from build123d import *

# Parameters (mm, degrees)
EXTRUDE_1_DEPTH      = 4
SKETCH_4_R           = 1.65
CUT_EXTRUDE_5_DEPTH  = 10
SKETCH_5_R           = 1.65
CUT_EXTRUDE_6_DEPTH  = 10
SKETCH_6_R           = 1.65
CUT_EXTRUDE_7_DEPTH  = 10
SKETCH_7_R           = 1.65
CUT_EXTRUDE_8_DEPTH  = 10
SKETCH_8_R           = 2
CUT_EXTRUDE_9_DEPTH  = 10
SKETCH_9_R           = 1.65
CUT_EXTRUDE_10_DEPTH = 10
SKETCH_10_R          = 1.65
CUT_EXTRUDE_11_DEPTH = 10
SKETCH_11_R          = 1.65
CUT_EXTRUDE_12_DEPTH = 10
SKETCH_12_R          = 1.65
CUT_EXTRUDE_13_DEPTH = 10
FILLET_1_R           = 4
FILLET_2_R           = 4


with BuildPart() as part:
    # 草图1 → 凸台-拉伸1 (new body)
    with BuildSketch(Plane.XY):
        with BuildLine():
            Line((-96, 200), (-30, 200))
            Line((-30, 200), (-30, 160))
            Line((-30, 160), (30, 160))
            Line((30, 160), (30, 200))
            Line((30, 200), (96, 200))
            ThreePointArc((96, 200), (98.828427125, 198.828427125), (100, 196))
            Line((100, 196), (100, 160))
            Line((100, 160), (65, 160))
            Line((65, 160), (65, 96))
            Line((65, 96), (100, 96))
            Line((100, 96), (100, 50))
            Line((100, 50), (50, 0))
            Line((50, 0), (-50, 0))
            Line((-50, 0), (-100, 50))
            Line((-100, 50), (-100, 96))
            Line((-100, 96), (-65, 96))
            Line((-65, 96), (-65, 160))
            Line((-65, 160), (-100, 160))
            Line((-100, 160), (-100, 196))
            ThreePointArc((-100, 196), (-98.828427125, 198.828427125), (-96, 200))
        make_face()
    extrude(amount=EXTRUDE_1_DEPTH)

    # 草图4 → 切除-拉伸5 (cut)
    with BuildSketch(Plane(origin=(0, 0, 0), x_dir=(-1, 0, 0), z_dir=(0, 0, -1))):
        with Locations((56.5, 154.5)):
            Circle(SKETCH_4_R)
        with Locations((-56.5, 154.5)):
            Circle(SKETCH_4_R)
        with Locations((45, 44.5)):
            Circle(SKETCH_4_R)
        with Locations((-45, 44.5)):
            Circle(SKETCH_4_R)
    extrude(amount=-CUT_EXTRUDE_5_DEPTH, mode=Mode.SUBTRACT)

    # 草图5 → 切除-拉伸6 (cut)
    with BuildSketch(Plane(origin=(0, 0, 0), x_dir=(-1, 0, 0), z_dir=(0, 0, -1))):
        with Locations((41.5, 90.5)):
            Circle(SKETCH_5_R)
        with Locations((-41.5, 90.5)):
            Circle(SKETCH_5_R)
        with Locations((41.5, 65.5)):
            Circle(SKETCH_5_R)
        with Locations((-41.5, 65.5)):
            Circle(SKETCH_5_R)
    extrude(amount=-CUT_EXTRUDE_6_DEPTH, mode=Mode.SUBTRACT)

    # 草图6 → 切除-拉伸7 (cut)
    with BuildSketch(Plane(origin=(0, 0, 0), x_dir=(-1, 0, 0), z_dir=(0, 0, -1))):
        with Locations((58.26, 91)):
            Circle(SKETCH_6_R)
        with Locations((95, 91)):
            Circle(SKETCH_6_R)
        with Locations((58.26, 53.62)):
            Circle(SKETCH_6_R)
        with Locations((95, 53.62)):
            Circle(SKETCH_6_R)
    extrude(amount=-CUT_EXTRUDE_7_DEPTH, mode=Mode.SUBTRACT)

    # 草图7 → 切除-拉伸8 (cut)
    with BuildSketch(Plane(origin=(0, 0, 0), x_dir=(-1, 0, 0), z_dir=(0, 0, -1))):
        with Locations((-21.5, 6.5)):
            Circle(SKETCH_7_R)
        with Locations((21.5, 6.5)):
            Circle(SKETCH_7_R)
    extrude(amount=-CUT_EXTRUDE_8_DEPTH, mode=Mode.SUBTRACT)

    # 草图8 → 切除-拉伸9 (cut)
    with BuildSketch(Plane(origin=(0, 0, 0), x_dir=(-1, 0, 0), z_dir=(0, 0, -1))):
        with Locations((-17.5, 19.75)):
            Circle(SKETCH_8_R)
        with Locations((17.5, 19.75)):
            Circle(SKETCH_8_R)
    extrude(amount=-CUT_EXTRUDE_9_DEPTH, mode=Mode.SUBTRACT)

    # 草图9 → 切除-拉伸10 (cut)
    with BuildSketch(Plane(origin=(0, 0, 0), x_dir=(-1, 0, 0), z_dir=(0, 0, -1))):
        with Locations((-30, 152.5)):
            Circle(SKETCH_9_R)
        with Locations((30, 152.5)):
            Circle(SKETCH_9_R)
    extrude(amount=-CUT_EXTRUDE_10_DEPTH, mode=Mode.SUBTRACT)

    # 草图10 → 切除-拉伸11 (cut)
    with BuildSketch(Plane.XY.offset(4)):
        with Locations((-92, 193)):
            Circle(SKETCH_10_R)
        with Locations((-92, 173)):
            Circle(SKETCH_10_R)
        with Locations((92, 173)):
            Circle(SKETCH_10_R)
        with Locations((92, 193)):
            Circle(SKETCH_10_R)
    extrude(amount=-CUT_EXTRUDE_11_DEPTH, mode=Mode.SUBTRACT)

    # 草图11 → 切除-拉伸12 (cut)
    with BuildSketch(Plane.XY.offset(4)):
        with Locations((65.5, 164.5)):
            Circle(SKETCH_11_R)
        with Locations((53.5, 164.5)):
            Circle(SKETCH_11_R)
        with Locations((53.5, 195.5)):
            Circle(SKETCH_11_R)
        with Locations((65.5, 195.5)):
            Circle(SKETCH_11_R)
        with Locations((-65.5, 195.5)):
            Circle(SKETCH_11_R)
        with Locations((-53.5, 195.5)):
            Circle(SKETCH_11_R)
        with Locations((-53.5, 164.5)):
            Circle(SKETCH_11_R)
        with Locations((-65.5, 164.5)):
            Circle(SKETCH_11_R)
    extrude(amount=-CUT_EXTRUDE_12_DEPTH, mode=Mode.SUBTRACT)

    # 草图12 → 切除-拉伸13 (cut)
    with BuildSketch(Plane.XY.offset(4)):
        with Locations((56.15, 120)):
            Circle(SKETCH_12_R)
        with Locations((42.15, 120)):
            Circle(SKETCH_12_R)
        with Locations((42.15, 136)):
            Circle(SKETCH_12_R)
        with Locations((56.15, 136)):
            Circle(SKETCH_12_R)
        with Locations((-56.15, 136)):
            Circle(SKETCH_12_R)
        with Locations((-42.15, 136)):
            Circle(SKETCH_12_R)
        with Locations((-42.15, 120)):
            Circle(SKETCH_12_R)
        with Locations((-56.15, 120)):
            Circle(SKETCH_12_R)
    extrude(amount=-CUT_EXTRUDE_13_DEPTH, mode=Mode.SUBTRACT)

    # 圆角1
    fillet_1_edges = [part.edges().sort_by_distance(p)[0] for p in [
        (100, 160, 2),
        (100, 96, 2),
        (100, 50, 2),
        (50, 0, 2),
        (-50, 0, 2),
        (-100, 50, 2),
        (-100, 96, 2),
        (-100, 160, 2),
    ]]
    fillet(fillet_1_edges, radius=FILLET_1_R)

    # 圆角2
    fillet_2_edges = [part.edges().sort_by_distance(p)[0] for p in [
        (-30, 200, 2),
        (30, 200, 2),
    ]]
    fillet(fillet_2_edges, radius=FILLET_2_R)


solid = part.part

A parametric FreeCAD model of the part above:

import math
import FreeCAD as App
import Part
import Sketcher

V = App.Vector
Q = App.Units.Quantity


def edges_at(feature, points):
    """Names of the edges that pass closest to the given points."""
    edges = feature.Shape.Edges
    near = lambda p: min(range(len(edges)), key=lambda i: edges[i].distToShape(Part.Vertex(*p))[0])
    return sorted({f"Edge{near(p) + 1}" for p in points})

doc = App.newDocument("Part")
body = doc.addObject("PartDesign::Body", "Body")

sketch1 = doc.addObject("Sketcher::SketchObject", "Sketch")
body.addObject(sketch1)
sketch1.AttachmentSupport = (doc.XY_Plane, [""])
sketch1.MapMode = "FlatFace"
sketch1.addGeometry(Part.LineSegment(V(-30, 200, 0), V(-96, 200, 0)), False)
sketch1.addGeometry(Part.ArcOfCircle(Part.Circle(V(-96, 196, 0), V(0, 0, 1), 4), math.radians(90), math.radians(180)), False)
sketch1.addGeometry(Part.LineSegment(V(-100, 196, 0), V(-100, 160, 0)), False)
sketch1.addGeometry(Part.LineSegment(V(-100, 160, 0), V(-65, 160, 0)), False)
sketch1.addGeometry(Part.LineSegment(V(-65, 160, 0), V(-65, 96, 0)), False)
sketch1.addGeometry(Part.LineSegment(V(-65, 96, 0), V(-100, 96, 0)), False)
sketch1.addGeometry(Part.LineSegment(V(-100, 96, 0), V(-100, 50, 0)), False)
sketch1.addGeometry(Part.LineSegment(V(-100, 50, 0), V(-50, 0, 0)), False)
sketch1.addGeometry(Part.LineSegment(V(-50, 0, 0), V(50, 0, 0)), False)
sketch1.addGeometry(Part.LineSegment(V(50, 0, 0), V(100, 50, 0)), False)
sketch1.addGeometry(Part.LineSegment(V(100, 50, 0), V(100, 96, 0)), False)
sketch1.addGeometry(Part.LineSegment(V(100, 96, 0), V(65, 96, 0)), False)
sketch1.addGeometry(Part.LineSegment(V(65, 96, 0), V(65, 160, 0)), False)
sketch1.addGeometry(Part.LineSegment(V(65, 160, 0), V(100, 160, 0)), False)
sketch1.addGeometry(Part.LineSegment(V(100, 160, 0), V(100, 196, 0)), False)
sketch1.addGeometry(Part.ArcOfCircle(Part.Circle(V(96, 196, 0), V(0, 0, 1), 4), math.radians(0), math.radians(90)), False)
sketch1.addGeometry(Part.LineSegment(V(96, 200, 0), V(30, 200, 0)), False)
sketch1.addGeometry(Part.LineSegment(V(30, 200, 0), V(30, 160, 0)), False)
sketch1.addGeometry(Part.LineSegment(V(30, 160, 0), V(-30, 160, 0)), False)
sketch1.addGeometry(Part.LineSegment(V(-30, 160, 0), V(-30, 200, 0)), False)
sketch1.addConstraint(Sketcher.Constraint("Tangent", 0, 2, 1, 1))
sketch1.addConstraint(Sketcher.Constraint("Tangent", 1, 2, 2, 1))
sketch1.addConstraint(Sketcher.Constraint("Coincident", 2, 2, 3, 1))
sketch1.addConstraint(Sketcher.Constraint("Coincident", 3, 2, 4, 1))
sketch1.addConstraint(Sketcher.Constraint("Coincident", 4, 2, 5, 1))
sketch1.addConstraint(Sketcher.Constraint("Coincident", 5, 2, 6, 1))
sketch1.addConstraint(Sketcher.Constraint("Coincident", 6, 2, 7, 1))
sketch1.addConstraint(Sketcher.Constraint("Coincident", 7, 2, 8, 1))
sketch1.addConstraint(Sketcher.Constraint("Coincident", 8, 2, 9, 1))
sketch1.addConstraint(Sketcher.Constraint("Coincident", 9, 2, 10, 1))
sketch1.addConstraint(Sketcher.Constraint("Coincident", 10, 2, 11, 1))
sketch1.addConstraint(Sketcher.Constraint("Coincident", 11, 2, 12, 1))
sketch1.addConstraint(Sketcher.Constraint("Coincident", 12, 2, 13, 1))
sketch1.addConstraint(Sketcher.Constraint("Coincident", 13, 2, 14, 1))
sketch1.addConstraint(Sketcher.Constraint("Tangent", 14, 2, 15, 1))
sketch1.addConstraint(Sketcher.Constraint("Tangent", 15, 2, 16, 1))
sketch1.addConstraint(Sketcher.Constraint("Coincident", 16, 2, 17, 1))
sketch1.addConstraint(Sketcher.Constraint("Coincident", 17, 2, 18, 1))
sketch1.addConstraint(Sketcher.Constraint("Coincident", 18, 2, 19, 1))
sketch1.addConstraint(Sketcher.Constraint("Coincident", 19, 2, 0, 1))
sketch1.addConstraint(Sketcher.Constraint("Horizontal", 0))
sketch1.addConstraint(Sketcher.Constraint("Vertical", 2))
sketch1.addConstraint(Sketcher.Constraint("Horizontal", 3))
sketch1.addConstraint(Sketcher.Constraint("Vertical", 4))
sketch1.addConstraint(Sketcher.Constraint("Horizontal", 5))
sketch1.addConstraint(Sketcher.Constraint("Vertical", 6))
sketch1.addConstraint(Sketcher.Constraint("Horizontal", 8))
sketch1.addConstraint(Sketcher.Constraint("Vertical", 10))
sketch1.addConstraint(Sketcher.Constraint("Horizontal", 11))
sketch1.addConstraint(Sketcher.Constraint("Vertical", 12))
sketch1.addConstraint(Sketcher.Constraint("Horizontal", 13))
sketch1.addConstraint(Sketcher.Constraint("Vertical", 14))
sketch1.addConstraint(Sketcher.Constraint("Horizontal", 16))
sketch1.addConstraint(Sketcher.Constraint("Vertical", 17))
sketch1.addConstraint(Sketcher.Constraint("Horizontal", 18))
sketch1.addConstraint(Sketcher.Constraint("Vertical", 19))
sketch1.addConstraint(Sketcher.Constraint("Equal", 1, 15))
sketch1.addConstraint(Sketcher.Constraint("Symmetric", 7, 2, 8, 2, -1, 1))
sketch1.addConstraint(Sketcher.Constraint("Symmetric", 1, 3, 15, 3, -2))
sketch1.addConstraint(Sketcher.Constraint("Symmetric", 6, 2, 9, 2, -2))
sketch1.addConstraint(Sketcher.Constraint("Symmetric", 4, 2, 11, 2, -2))
sketch1.addConstraint(Sketcher.Constraint("Perpendicular", 7, 9))
sketch1.addConstraint(Sketcher.Constraint("Horizontal", 3, 2, 12, 2))
sketch1.addConstraint(Sketcher.Constraint("Horizontal", 13, 2, 17, 2))
sketch1.addConstraint(Sketcher.Constraint("Vertical", 2, 2, 5, 2))
sketch1.addConstraint(Sketcher.Constraint("Equal", 0, 16))
sketch1.addConstraint(Sketcher.Constraint("Radius", 1, Q("4 mm")))
sketch1.addConstraint(Sketcher.Constraint("DistanceX", 0, 2, 0, 1, Q("66 mm")))
sketch1.addConstraint(Sketcher.Constraint("DistanceX", 3, 1, 3, 2, Q("35 mm")))
sketch1.addConstraint(Sketcher.Constraint("DistanceX", 8, 1, 8, 2, Q("100 mm")))
sketch1.addConstraint(Sketcher.Constraint("DistanceX", 18, 2, 18, 1, Q("60 mm")))
sketch1.addConstraint(Sketcher.Constraint("DistanceY", 2, 2, 2, 1, Q("36 mm")))
sketch1.addConstraint(Sketcher.Constraint("DistanceY", 4, 2, 4, 1, Q("64 mm")))
sketch1.addConstraint(Sketcher.Constraint("DistanceY", 6, 2, 6, 1, Q("46 mm")))
pad1 = doc.addObject("PartDesign::Pad", "Pad")
body.addObject(pad1)
pad1.Profile = sketch1
pad1.Length = 4

sketch2 = doc.addObject("Sketcher::SketchObject", "Sketch001")
body.addObject(sketch2)
sketch2.AttachmentSupport = (doc.XY_Plane, [""])
sketch2.MapMode = "FlatFace"
sketch2.addGeometry(Part.Circle(V(-56.5, 154.5, 0), V(0, 0, 1), 1.6), False)
sketch2.addGeometry(Part.Circle(V(56.5, 154.5, 0), V(0, 0, 1), 1.6), False)
sketch2.addGeometry(Part.Circle(V(-45, 44.5, 0), V(0, 0, 1), 1.6), False)
sketch2.addGeometry(Part.Circle(V(45, 44.5, 0), V(0, 0, 1), 1.6), False)
sketch2.addConstraint(Sketcher.Constraint("Equal", 0, 1))
sketch2.addConstraint(Sketcher.Constraint("Equal", 1, 2))
sketch2.addConstraint(Sketcher.Constraint("Equal", 2, 3))
sketch2.addConstraint(Sketcher.Constraint("Symmetric", 0, 3, 1, 3, -2))
sketch2.addConstraint(Sketcher.Constraint("Symmetric", 2, 3, 3, 3, -2))
sketch2.addConstraint(Sketcher.Constraint("Diameter", 0, Q("3.3 mm")))
sketch2.addConstraint(Sketcher.Constraint("DistanceX", 2, 3, -1, 1, Q("45 mm")))
sketch2.addConstraint(Sketcher.Constraint("DistanceX", 0, 3, 1, 3, Q("113 mm")))
sketch2.addConstraint(Sketcher.Constraint("DistanceY", 2, 3, 0, 3, Q("110 mm")))
sketch2.addConstraint(Sketcher.Constraint("DistanceY", -1, 1, 0, 3, Q("154.5 mm")))
pocket1 = doc.addObject("PartDesign::Pocket", "Pocket")
body.addObject(pocket1)
pocket1.Profile = sketch2
pocket1.Length = 10
pocket1.Reversed = True

sketch3 = doc.addObject("Sketcher::SketchObject", "Sketch002")
body.addObject(sketch3)
sketch3.AttachmentSupport = (doc.XY_Plane, [""])
sketch3.MapMode = "FlatFace"
sketch3.addGeometry(Part.Circle(V(-41.5, 90.5, 0), V(0, 0, 1), 1.6), False)
sketch3.addGeometry(Part.Circle(V(41.5, 90.5, 0), V(0, 0, 1), 1.6), False)
sketch3.addGeometry(Part.Circle(V(-41.5, 65.5, 0), V(0, 0, 1), 1.6), False)
sketch3.addGeometry(Part.Circle(V(41.5, 65.5, 0), V(0, 0, 1), 1.6), False)
sketch3.addConstraint(Sketcher.Constraint("Equal", 0, 1))
sketch3.addConstraint(Sketcher.Constraint("Equal", 1, 2))
sketch3.addConstraint(Sketcher.Constraint("Equal", 2, 3))
sketch3.addConstraint(Sketcher.Constraint("Symmetric", 0, 3, 1, 3, -2))
sketch3.addConstraint(Sketcher.Constraint("Symmetric", 2, 3, 3, 3, -2))
sketch3.addConstraint(Sketcher.Constraint("Vertical", 0, 3, 2, 3))
sketch3.addConstraint(Sketcher.Constraint("Diameter", 0, Q("3.3 mm")))
sketch3.addConstraint(Sketcher.Constraint("DistanceX", 0, 3, 1, 3, Q("83 mm")))
sketch3.addConstraint(Sketcher.Constraint("DistanceY", 2, 3, 0, 3, Q("25 mm")))
sketch3.addConstraint(Sketcher.Constraint("DistanceY", -1, 1, 0, 3, Q("90.5 mm")))
pocket2 = doc.addObject("PartDesign::Pocket", "Pocket001")
body.addObject(pocket2)
pocket2.Profile = sketch3
pocket2.Length = 10
pocket2.Reversed = True

sketch4 = doc.addObject("Sketcher::SketchObject", "Sketch003")
body.addObject(sketch4)
sketch4.AttachmentSupport = (doc.XY_Plane, [""])
sketch4.MapMode = "FlatFace"
sketch4.addGeometry(Part.Circle(V(-58.3, 91, 0), V(0, 0, 1), 1.6), False)
sketch4.addGeometry(Part.Circle(V(-95, 91, 0), V(0, 0, 1), 1.6), False)
sketch4.addGeometry(Part.Circle(V(-58.3, 53.6, 0), V(0, 0, 1), 1.6), False)
sketch4.addGeometry(Part.Circle(V(-95, 53.6, 0), V(0, 0, 1), 1.6), False)
sketch4.addConstraint(Sketcher.Constraint("Equal", 0, 1))
sketch4.addConstraint(Sketcher.Constraint("Equal", 1, 2))
sketch4.addConstraint(Sketcher.Constraint("Equal", 2, 3))
sketch4.addConstraint(Sketcher.Constraint("Horizontal", 0, 3, 1, 3))
sketch4.addConstraint(Sketcher.Constraint("Horizontal", 2, 3, 3, 3))
sketch4.addConstraint(Sketcher.Constraint("Vertical", 0, 3, 2, 3))
sketch4.addConstraint(Sketcher.Constraint("Vertical", 1, 3, 3, 3))
sketch4.addConstraint(Sketcher.Constraint("Diameter", 0, Q("3.3 mm")))
sketch4.addConstraint(Sketcher.Constraint("DistanceY", -1, 1, 0, 3, Q("91 mm")))
sketch4.addConstraint(Sketcher.Constraint("DistanceX", 1, 3, -1, 1, Q("95 mm")))
sketch4.addConstraint(Sketcher.Constraint("DistanceX", 0, 3, -1, 1, Q("58.26 mm")))
sketch4.addConstraint(Sketcher.Constraint("DistanceY", -1, 1, 2, 3, Q("53.62 mm")))
pocket3 = doc.addObject("PartDesign::Pocket", "Pocket002")
body.addObject(pocket3)
pocket3.Profile = sketch4
pocket3.Length = 10
pocket3.Reversed = True

sketch5 = doc.addObject("Sketcher::SketchObject", "Sketch004")
body.addObject(sketch5)
sketch5.AttachmentSupport = (doc.XY_Plane, [""])
sketch5.MapMode = "FlatFace"
sketch5.addGeometry(Part.Circle(V(21.5, 6.5, 0), V(0, 0, 1), 1.6), False)
sketch5.addGeometry(Part.Circle(V(-21.5, 6.5, 0), V(0, 0, 1), 1.6), False)
sketch5.addConstraint(Sketcher.Constraint("Equal", 0, 1))
sketch5.addConstraint(Sketcher.Constraint("Symmetric", 0, 3, 1, 3, -2))
sketch5.addConstraint(Sketcher.Constraint("Diameter", 0, Q("3.3 mm")))
sketch5.addConstraint(Sketcher.Constraint("DistanceX", 1, 3, 0, 3, Q("43 mm")))
sketch5.addConstraint(Sketcher.Constraint("DistanceY", -1, 1, 0, 3, Q("6.5 mm")))
pocket4 = doc.addObject("PartDesign::Pocket", "Pocket003")
body.addObject(pocket4)
pocket4.Profile = sketch5
pocket4.Length = 10
pocket4.Reversed = True

sketch6 = doc.addObject("Sketcher::SketchObject", "Sketch005")
body.addObject(sketch6)
sketch6.AttachmentSupport = (doc.XY_Plane, [""])
sketch6.MapMode = "FlatFace"
sketch6.addGeometry(Part.Circle(V(17.5, 19.8, 0), V(0, 0, 1), 2), False)
sketch6.addGeometry(Part.Circle(V(-17.5, 19.8, 0), V(0, 0, 1), 2), False)
sketch6.addConstraint(Sketcher.Constraint("Equal", 0, 1))
sketch6.addConstraint(Sketcher.Constraint("Symmetric", 0, 3, 1, 3, -2))
sketch6.addConstraint(Sketcher.Constraint("Diameter", 0, Q("4 mm")))
sketch6.addConstraint(Sketcher.Constraint("DistanceX", 1, 3, 0, 3, Q("35 mm")))
sketch6.addConstraint(Sketcher.Constraint("DistanceY", -1, 1, 0, 3, Q("19.75 mm")))
pocket5 = doc.addObject("PartDesign::Pocket", "Pocket004")
body.addObject(pocket5)
pocket5.Profile = sketch6
pocket5.Length = 10
pocket5.Reversed = True

sketch7 = doc.addObject("Sketcher::SketchObject", "Sketch006")
body.addObject(sketch7)
sketch7.AttachmentSupport = (doc.XY_Plane, [""])
sketch7.MapMode = "FlatFace"
sketch7.addGeometry(Part.Circle(V(30, 152.5, 0), V(0, 0, 1), 1.6), False)
sketch7.addGeometry(Part.Circle(V(-30, 152.5, 0), V(0, 0, 1), 1.6), False)
sketch7.addConstraint(Sketcher.Constraint("Equal", 0, 1))
sketch7.addConstraint(Sketcher.Constraint("Symmetric", 0, 3, 1, 3, -2))
sketch7.addConstraint(Sketcher.Constraint("Diameter", 0, Q("3.3 mm")))
sketch7.addConstraint(Sketcher.Constraint("DistanceX", -1, 1, 0, 3, Q("30 mm")))
sketch7.addConstraint(Sketcher.Constraint("DistanceY", -1, 1, 0, 3, Q("152.5 mm")))
pocket6 = doc.addObject("PartDesign::Pocket", "Pocket005")
body.addObject(pocket6)
pocket6.Profile = sketch7
pocket6.Length = 10
pocket6.Reversed = True

sketch8 = doc.addObject("Sketcher::SketchObject", "Sketch007")
body.addObject(sketch8)
sketch8.AttachmentSupport = (doc.XY_Plane, [""])
sketch8.MapMode = "FlatFace"
sketch8.AttachmentOffset = App.Placement(V(0, 0, 4), App.Rotation())
sketch8.addGeometry(Part.Circle(V(-92, 193, 0), V(0, 0, 1), 1.6), False)
sketch8.addGeometry(Part.Circle(V(-92, 173, 0), V(0, 0, 1), 1.6), False)
sketch8.addGeometry(Part.Circle(V(92, 173, 0), V(0, 0, 1), 1.6), False)
sketch8.addGeometry(Part.Circle(V(92, 193, 0), V(0, 0, 1), 1.6), False)
sketch8.addConstraint(Sketcher.Constraint("Equal", 0, 1))
sketch8.addConstraint(Sketcher.Constraint("Equal", 1, 2))
sketch8.addConstraint(Sketcher.Constraint("Equal", 2, 3))
sketch8.addConstraint(Sketcher.Constraint("Symmetric", 1, 3, 2, 3, -2))
sketch8.addConstraint(Sketcher.Constraint("Symmetric", 0, 3, 3, 3, -2))
sketch8.addConstraint(Sketcher.Constraint("Vertical", 0, 3, 1, 3))
sketch8.addConstraint(Sketcher.Constraint("Diameter", 0, Q("3.3 mm")))
sketch8.addConstraint(Sketcher.Constraint("DistanceX", 0, 3, -1, 1, Q("92 mm")))
sketch8.addConstraint(Sketcher.Constraint("DistanceY", -1, 1, 0, 3, Q("193 mm")))
sketch8.addConstraint(Sketcher.Constraint("DistanceY", -1, 1, 1, 3, Q("173 mm")))
pocket7 = doc.addObject("PartDesign::Pocket", "Pocket006")
body.addObject(pocket7)
pocket7.Profile = sketch8
pocket7.Length = 10

sketch9 = doc.addObject("Sketcher::SketchObject", "Sketch008")
body.addObject(sketch9)
sketch9.AttachmentSupport = (doc.XY_Plane, [""])
sketch9.MapMode = "FlatFace"
sketch9.AttachmentOffset = App.Placement(V(0, 0, 4), App.Rotation())
sketch9.addGeometry(Part.Circle(V(65.5, 164.5, 0), V(0, 0, 1), 1.6), False)
sketch9.addGeometry(Part.Circle(V(53.5, 164.5, 0), V(0, 0, 1), 1.6), False)
sketch9.addGeometry(Part.Circle(V(53.5, 195.5, 0), V(0, 0, 1), 1.6), False)
sketch9.addGeometry(Part.Circle(V(65.5, 195.5, 0), V(0, 0, 1), 1.6), False)
sketch9.addGeometry(Part.Circle(V(-65.5, 195.5, 0), V(0, 0, 1), 1.6), False)
sketch9.addGeometry(Part.Circle(V(-53.5, 195.5, 0), V(0, 0, 1), 1.6), False)
sketch9.addGeometry(Part.Circle(V(-53.5, 164.5, 0), V(0, 0, 1), 1.6), False)
sketch9.addGeometry(Part.Circle(V(-65.5, 164.5, 0), V(0, 0, 1), 1.6), False)
sketch9.addConstraint(Sketcher.Constraint("Equal", 0, 1))
sketch9.addConstraint(Sketcher.Constraint("Equal", 1, 2))
sketch9.addConstraint(Sketcher.Constraint("Equal", 2, 3))
sketch9.addConstraint(Sketcher.Constraint("Equal", 3, 4))
sketch9.addConstraint(Sketcher.Constraint("Equal", 4, 5))
sketch9.addConstraint(Sketcher.Constraint("Equal", 5, 6))
sketch9.addConstraint(Sketcher.Constraint("Equal", 6, 7))
sketch9.addConstraint(Sketcher.Constraint("Symmetric", 3, 3, 4, 3, -2))
sketch9.addConstraint(Sketcher.Constraint("Symmetric", 2, 3, 5, 3, -2))
sketch9.addConstraint(Sketcher.Constraint("Symmetric", 1, 3, 6, 3, -2))
sketch9.addConstraint(Sketcher.Constraint("Symmetric", 0, 3, 7, 3, -2))
sketch9.addConstraint(Sketcher.Constraint("Horizontal", 0, 3, 1, 3))
sketch9.addConstraint(Sketcher.Constraint("Horizontal", 2, 3, 3, 3))
sketch9.addConstraint(Sketcher.Constraint("Vertical", 1, 3, 2, 3))
sketch9.addConstraint(Sketcher.Constraint("Vertical", 0, 3, 3, 3))
sketch9.addConstraint(Sketcher.Constraint("Diameter", 0, Q("3.3 mm")))
sketch9.addConstraint(Sketcher.Constraint("DistanceX", 1, 3, 0, 3, Q("12 mm")))
sketch9.addConstraint(Sketcher.Constraint("DistanceY", 1, 3, 2, 3, Q("31 mm")))
sketch9.addConstraint(Sketcher.Constraint("DistanceX", 4, 3, 2, 3, Q("119 mm")))
sketch9.addConstraint(Sketcher.Constraint("DistanceY", -1, 1, 0, 3, Q("164.5 mm")))
pocket8 = doc.addObject("PartDesign::Pocket", "Pocket007")
body.addObject(pocket8)
pocket8.Profile = sketch9
pocket8.Length = 10

sketch10 = doc.addObject("Sketcher::SketchObject", "Sketch009")
body.addObject(sketch10)
sketch10.AttachmentSupport = (doc.XY_Plane, [""])
sketch10.MapMode = "FlatFace"
sketch10.AttachmentOffset = App.Placement(V(0, 0, 4), App.Rotation())
sketch10.addGeometry(Part.Circle(V(56.1, 120, 0), V(0, 0, 1), 1.6), False)
sketch10.addGeometry(Part.Circle(V(42.1, 120, 0), V(0, 0, 1), 1.6), False)
sketch10.addGeometry(Part.Circle(V(42.1, 136, 0), V(0, 0, 1), 1.6), False)
sketch10.addGeometry(Part.Circle(V(56.1, 136, 0), V(0, 0, 1), 1.6), False)
sketch10.addGeometry(Part.Circle(V(-56.1, 136, 0), V(0, 0, 1), 1.6), False)
sketch10.addGeometry(Part.Circle(V(-42.1, 136, 0), V(0, 0, 1), 1.6), False)
sketch10.addGeometry(Part.Circle(V(-42.1, 120, 0), V(0, 0, 1), 1.6), False)
sketch10.addGeometry(Part.Circle(V(-56.1, 120, 0), V(0, 0, 1), 1.6), False)
sketch10.addConstraint(Sketcher.Constraint("Equal", 0, 1))
sketch10.addConstraint(Sketcher.Constraint("Equal", 1, 2))
sketch10.addConstraint(Sketcher.Constraint("Equal", 2, 3))
sketch10.addConstraint(Sketcher.Constraint("Equal", 3, 4))
sketch10.addConstraint(Sketcher.Constraint("Equal", 4, 5))
sketch10.addConstraint(Sketcher.Constraint("Equal", 5, 6))
sketch10.addConstraint(Sketcher.Constraint("Equal", 6, 7))
sketch10.addConstraint(Sketcher.Constraint("Symmetric", 3, 3, 4, 3, -2))
sketch10.addConstraint(Sketcher.Constraint("Symmetric", 2, 3, 5, 3, -2))
sketch10.addConstraint(Sketcher.Constraint("Symmetric", 1, 3, 6, 3, -2))
sketch10.addConstraint(Sketcher.Constraint("Symmetric", 0, 3, 7, 3, -2))
sketch10.addConstraint(Sketcher.Constraint("Horizontal", 0, 3, 1, 3))
sketch10.addConstraint(Sketcher.Constraint("Horizontal", 2, 3, 3, 3))
sketch10.addConstraint(Sketcher.Constraint("Vertical", 1, 3, 2, 3))
sketch10.addConstraint(Sketcher.Constraint("Vertical", 0, 3, 3, 3))
sketch10.addConstraint(Sketcher.Constraint("Diameter", 0, Q("3.3 mm")))
sketch10.addConstraint(Sketcher.Constraint("DistanceY", -1, 1, 0, 3, Q("120 mm")))
sketch10.addConstraint(Sketcher.Constraint("DistanceY", -1, 1, 2, 3, Q("136 mm")))
sketch10.addConstraint(Sketcher.Constraint("DistanceX", 1, 3, 0, 3, Q("14 mm")))
sketch10.addConstraint(Sketcher.Constraint("DistanceX", 4, 3, 2, 3, Q("98.3 mm")))
pocket9 = doc.addObject("PartDesign::Pocket", "Pocket008")
body.addObject(pocket9)
pocket9.Profile = sketch10
pocket9.Length = 10
doc.recompute()

fillet = doc.addObject("PartDesign::Fillet", "Fillet")
body.addObject(fillet)
fillet.Base = (pocket9, edges_at(pocket9, [
    (100, 160, 2),
    (100, 96, 2),
    (100, 50, 2),
    (50, 0, 2),
    (-50, 0, 2),
    (-100, 50, 2),
    (-100, 96, 2),
    (-100, 160, 2),
]))
fillet.Radius = 4
doc.recompute()

fillet2 = doc.addObject("PartDesign::Fillet", "Fillet001")
body.addObject(fillet2)
fillet2.Base = (fillet, edges_at(fillet, [(-30, 200, 2), (30, 200, 2)]))
fillet2.Radius = 4

doc.recompute()
